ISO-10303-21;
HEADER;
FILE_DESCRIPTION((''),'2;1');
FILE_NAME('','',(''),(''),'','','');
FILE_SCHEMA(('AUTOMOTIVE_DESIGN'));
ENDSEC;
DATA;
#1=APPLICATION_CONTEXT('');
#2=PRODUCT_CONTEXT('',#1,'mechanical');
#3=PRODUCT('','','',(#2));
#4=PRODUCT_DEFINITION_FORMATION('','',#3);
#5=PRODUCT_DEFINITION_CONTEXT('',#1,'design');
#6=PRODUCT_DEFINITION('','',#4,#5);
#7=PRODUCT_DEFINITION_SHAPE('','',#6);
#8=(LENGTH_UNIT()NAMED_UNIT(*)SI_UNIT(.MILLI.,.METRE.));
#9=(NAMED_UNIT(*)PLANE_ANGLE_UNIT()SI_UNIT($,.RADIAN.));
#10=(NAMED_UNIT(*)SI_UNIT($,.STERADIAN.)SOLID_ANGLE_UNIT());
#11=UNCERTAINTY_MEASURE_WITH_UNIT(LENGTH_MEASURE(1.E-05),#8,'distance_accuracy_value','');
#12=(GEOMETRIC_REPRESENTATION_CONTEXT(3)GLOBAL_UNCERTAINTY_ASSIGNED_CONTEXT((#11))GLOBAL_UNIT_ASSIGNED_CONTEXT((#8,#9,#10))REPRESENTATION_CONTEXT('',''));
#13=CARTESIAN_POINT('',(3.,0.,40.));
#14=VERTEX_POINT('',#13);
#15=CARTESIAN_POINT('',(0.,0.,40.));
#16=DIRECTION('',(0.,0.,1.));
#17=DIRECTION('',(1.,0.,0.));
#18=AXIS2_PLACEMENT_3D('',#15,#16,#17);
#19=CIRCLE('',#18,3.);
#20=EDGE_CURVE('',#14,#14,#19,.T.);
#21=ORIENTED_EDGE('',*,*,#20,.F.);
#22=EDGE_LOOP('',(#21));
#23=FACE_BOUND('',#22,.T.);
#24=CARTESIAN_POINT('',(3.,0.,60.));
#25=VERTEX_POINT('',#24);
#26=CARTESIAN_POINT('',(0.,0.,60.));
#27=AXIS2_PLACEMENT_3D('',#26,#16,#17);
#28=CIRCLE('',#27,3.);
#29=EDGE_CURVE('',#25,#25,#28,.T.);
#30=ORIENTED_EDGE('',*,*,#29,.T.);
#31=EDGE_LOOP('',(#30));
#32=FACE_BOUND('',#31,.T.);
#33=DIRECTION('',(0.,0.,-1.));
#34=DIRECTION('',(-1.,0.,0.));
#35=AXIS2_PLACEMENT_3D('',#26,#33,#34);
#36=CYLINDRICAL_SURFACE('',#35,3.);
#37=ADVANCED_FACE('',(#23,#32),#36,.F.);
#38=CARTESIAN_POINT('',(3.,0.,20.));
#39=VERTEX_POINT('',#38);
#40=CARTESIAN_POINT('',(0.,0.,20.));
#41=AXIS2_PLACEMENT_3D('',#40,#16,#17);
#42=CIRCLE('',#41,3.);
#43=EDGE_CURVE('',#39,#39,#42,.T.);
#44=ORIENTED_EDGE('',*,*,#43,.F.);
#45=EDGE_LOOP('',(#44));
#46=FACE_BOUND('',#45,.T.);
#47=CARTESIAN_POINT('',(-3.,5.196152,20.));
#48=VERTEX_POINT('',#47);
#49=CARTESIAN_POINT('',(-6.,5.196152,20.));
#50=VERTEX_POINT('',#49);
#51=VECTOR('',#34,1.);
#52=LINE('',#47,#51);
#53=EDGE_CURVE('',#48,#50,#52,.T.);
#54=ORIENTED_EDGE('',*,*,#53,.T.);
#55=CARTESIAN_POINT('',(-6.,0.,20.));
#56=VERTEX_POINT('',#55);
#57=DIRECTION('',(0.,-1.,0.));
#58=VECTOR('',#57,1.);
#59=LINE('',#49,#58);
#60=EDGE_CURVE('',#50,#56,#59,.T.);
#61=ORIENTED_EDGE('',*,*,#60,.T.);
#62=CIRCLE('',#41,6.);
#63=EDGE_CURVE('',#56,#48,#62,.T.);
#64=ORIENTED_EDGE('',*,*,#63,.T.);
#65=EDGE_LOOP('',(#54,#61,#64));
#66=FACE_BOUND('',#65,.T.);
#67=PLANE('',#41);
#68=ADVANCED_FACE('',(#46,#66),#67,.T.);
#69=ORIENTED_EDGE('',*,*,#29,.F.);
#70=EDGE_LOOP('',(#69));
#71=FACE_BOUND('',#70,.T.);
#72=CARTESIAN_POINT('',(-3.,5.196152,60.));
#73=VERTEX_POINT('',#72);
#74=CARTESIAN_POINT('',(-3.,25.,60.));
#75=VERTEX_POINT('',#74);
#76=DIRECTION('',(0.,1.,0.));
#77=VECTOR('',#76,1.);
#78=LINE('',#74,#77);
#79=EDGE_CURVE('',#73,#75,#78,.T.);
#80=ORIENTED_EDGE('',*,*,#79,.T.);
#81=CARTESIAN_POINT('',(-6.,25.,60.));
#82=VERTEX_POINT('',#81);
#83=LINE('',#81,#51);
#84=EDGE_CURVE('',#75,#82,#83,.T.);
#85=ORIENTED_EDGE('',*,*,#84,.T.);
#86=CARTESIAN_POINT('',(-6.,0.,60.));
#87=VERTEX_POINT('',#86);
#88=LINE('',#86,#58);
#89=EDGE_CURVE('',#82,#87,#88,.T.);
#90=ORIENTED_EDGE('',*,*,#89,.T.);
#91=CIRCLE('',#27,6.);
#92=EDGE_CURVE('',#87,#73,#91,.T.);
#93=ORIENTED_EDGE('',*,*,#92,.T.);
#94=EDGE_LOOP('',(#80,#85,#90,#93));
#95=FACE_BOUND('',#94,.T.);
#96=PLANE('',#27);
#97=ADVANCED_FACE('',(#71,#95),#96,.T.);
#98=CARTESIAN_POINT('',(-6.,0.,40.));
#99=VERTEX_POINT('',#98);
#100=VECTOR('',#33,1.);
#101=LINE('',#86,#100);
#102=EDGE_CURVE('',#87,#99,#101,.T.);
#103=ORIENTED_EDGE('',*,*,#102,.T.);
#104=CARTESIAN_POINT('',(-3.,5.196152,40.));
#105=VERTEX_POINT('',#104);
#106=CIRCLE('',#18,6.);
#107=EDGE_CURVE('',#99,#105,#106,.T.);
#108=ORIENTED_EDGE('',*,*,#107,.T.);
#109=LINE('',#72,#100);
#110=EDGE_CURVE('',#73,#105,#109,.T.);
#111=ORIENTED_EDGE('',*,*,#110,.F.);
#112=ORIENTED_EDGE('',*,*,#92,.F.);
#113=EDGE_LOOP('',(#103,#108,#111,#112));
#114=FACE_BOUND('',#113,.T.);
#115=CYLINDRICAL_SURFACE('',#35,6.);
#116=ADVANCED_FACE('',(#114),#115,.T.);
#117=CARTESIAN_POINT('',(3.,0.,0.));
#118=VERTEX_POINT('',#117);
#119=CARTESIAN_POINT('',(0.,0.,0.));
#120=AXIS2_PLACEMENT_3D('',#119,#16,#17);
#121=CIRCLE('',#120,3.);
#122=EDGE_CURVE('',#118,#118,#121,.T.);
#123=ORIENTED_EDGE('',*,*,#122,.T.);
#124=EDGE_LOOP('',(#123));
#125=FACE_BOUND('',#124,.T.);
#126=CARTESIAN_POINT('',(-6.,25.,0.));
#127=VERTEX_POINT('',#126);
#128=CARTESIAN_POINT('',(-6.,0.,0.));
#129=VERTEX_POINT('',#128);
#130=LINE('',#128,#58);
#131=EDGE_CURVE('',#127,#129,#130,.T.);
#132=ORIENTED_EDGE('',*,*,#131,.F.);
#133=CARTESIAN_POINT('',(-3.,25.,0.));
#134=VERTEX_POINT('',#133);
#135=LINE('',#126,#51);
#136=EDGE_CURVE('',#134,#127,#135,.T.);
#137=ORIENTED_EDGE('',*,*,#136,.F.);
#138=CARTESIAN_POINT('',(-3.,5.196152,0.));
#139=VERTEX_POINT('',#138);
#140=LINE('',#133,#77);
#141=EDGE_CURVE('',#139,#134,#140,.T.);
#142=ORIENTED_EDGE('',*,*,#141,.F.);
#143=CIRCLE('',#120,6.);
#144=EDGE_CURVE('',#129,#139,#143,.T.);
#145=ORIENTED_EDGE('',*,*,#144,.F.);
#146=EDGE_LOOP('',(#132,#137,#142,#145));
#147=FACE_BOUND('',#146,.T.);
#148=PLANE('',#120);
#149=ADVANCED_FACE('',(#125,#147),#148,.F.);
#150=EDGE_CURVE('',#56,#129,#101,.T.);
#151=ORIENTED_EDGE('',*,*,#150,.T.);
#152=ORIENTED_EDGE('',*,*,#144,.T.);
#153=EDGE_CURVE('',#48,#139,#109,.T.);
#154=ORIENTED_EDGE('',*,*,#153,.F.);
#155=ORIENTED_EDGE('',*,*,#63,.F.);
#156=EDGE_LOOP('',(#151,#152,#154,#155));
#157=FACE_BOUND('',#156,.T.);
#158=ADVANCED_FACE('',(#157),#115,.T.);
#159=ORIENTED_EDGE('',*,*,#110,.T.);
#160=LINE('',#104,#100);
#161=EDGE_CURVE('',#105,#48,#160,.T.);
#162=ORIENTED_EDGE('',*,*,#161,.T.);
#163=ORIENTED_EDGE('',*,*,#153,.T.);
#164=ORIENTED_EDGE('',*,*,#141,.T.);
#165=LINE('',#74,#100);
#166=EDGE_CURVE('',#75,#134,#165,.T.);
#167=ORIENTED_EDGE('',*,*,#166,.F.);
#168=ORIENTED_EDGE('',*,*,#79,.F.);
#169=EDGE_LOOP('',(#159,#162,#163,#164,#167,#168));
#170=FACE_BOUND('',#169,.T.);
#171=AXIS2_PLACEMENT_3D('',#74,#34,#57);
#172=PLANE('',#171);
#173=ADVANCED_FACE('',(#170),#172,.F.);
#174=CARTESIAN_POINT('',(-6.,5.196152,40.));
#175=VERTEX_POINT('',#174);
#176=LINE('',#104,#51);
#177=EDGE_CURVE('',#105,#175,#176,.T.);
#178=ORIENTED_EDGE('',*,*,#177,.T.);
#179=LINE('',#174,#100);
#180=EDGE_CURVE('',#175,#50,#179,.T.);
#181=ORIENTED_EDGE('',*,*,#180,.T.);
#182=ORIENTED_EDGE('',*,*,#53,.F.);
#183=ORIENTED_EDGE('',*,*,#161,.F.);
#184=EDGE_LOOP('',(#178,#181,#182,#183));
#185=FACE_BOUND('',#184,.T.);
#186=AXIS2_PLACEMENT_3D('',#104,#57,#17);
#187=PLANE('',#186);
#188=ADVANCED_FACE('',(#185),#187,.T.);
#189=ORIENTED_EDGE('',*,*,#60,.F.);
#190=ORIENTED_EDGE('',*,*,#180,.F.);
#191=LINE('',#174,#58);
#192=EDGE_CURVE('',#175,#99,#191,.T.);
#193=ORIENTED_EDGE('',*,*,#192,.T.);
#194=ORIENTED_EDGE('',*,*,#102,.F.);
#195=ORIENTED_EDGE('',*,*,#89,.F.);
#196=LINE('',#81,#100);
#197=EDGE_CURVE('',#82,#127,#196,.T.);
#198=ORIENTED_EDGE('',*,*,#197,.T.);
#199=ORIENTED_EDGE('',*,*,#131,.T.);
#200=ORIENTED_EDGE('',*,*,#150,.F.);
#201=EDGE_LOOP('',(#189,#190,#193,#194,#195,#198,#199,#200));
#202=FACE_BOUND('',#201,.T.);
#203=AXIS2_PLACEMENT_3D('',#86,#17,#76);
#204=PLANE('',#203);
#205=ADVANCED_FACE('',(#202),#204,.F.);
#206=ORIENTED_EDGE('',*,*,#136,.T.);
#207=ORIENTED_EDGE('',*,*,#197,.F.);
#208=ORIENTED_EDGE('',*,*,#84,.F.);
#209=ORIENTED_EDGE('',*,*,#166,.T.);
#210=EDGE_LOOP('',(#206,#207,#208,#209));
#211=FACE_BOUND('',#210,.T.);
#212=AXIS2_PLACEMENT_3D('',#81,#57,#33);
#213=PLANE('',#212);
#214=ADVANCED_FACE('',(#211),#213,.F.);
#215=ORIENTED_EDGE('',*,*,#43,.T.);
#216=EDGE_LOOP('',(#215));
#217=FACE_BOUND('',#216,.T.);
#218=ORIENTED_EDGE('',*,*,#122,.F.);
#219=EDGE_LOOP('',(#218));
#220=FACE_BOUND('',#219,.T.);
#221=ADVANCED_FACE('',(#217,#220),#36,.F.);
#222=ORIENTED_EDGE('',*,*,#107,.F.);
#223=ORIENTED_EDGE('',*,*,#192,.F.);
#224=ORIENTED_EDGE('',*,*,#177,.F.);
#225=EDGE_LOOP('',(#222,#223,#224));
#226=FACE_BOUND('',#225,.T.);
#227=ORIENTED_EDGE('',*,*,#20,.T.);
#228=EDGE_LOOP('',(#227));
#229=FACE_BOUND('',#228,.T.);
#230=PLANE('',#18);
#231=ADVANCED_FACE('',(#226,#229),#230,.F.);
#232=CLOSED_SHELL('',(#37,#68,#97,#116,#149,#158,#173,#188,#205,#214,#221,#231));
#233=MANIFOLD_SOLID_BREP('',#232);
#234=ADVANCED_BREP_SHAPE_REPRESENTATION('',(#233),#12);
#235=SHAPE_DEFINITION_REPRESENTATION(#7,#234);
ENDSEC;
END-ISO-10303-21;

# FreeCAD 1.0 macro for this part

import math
import FreeCAD as App
import Part
import Sketcher

V = App.Vector

doc = App.newDocument("Part")
body = doc.addObject("PartDesign::Body", "Body")

sketch1 = body.newObject("Sketcher::SketchObject", "Sketch")
sketch1.AttachmentSupport = (doc.getObject("XY_Plane"), [""])
sketch1.MapMode = "FlatFace"
sketch1.addGeometry([
    Part.LineSegment(V(-6, 25, 0), V(-6, 0, 0)),
    Part.ArcOfCircle(Part.Circle(V(0, 0, 0), V(0, 0, 1), 6), math.radians(180), math.radians(480)),
    Part.LineSegment(V(-3, 5.196152, 0), V(-3, 25, 0)),
    Part.LineSegment(V(-3, 25, 0), V(-6, 25, 0)),
    Part.Circle(V(0, 0, 0), V(0, 0, 1), 3),
], False)
sketch1.addConstraint([
    Sketcher.Constraint("Tangent", 0, 2, 1, 1),
    Sketcher.Constraint("Coincident", 1, 2, 2, 1),
    Sketcher.Constraint("Coincident", 2, 2, 3, 1),
    Sketcher.Constraint("Coincident", 3, 2, 0, 1),
    Sketcher.Constraint("Vertical", 0),
    Sketcher.Constraint("Vertical", 2),
    Sketcher.Constraint("Horizontal", 3),
    Sketcher.Constraint("Coincident", 1, 3, -1, 1),
    Sketcher.Constraint("Coincident", 4, 3, -1, 1),
    Sketcher.Constraint("Diameter", 4, 6.0),
    Sketcher.Constraint("Radius", 1, 6.0),
    Sketcher.Constraint("DistanceX", 3, 2, 3, 1, 3.0),
    Sketcher.Constraint("DistanceY", 0, 2, 0, 1, 25.0),
])
pad1 = body.newObject("PartDesign::Pad", "Pad")
pad1.Profile = sketch1
pad1.Length = 60

sketch2 = body.newObject("Sketcher::SketchObject", "Sketch001")
sketch2.AttachmentSupport = (doc.getObject("XY_Plane"), [""])
sketch2.MapMode = "FlatFace"
sketch2.AttachmentOffset = App.Placement(V(0, 0, 20), App.Rotation())
sketch2.addGeometry([
    Part.LineSegment(V(-3, 5.196152, 0), V(-6, 5.196152, 0)),
    Part.LineSegment(V(-6, 5.196152, 0), V(-6, 0, 0)),
    Part.ArcOfCircle(Part.Circle(V(0, 0, 0), V(0, 0, 1), 6), math.radians(180), math.radians(480)),
], False)
sketch2.addConstraint([
    Sketcher.Constraint("Coincident", 0, 2, 1, 1),
    Sketcher.Constraint("Tangent", 1, 2, 2, 1),
    Sketcher.Constraint("Coincident", 2, 2, 0, 1),
    Sketcher.Constraint("Horizontal", 0),
    Sketcher.Constraint("Vertical", 1),
    Sketcher.Constraint("Coincident", 2, 3, -1, 1),
    Sketcher.Constraint("Radius", 2, 6.0),
    Sketcher.Constraint("DistanceX", 0, 2, 0, 1, 3.0),
])
pocket1 = body.newObject("PartDesign::Pocket", "Pocket")
pocket1.Profile = sketch2
pocket1.Length = 20
pocket1.Reversed = True

doc.recompute()
